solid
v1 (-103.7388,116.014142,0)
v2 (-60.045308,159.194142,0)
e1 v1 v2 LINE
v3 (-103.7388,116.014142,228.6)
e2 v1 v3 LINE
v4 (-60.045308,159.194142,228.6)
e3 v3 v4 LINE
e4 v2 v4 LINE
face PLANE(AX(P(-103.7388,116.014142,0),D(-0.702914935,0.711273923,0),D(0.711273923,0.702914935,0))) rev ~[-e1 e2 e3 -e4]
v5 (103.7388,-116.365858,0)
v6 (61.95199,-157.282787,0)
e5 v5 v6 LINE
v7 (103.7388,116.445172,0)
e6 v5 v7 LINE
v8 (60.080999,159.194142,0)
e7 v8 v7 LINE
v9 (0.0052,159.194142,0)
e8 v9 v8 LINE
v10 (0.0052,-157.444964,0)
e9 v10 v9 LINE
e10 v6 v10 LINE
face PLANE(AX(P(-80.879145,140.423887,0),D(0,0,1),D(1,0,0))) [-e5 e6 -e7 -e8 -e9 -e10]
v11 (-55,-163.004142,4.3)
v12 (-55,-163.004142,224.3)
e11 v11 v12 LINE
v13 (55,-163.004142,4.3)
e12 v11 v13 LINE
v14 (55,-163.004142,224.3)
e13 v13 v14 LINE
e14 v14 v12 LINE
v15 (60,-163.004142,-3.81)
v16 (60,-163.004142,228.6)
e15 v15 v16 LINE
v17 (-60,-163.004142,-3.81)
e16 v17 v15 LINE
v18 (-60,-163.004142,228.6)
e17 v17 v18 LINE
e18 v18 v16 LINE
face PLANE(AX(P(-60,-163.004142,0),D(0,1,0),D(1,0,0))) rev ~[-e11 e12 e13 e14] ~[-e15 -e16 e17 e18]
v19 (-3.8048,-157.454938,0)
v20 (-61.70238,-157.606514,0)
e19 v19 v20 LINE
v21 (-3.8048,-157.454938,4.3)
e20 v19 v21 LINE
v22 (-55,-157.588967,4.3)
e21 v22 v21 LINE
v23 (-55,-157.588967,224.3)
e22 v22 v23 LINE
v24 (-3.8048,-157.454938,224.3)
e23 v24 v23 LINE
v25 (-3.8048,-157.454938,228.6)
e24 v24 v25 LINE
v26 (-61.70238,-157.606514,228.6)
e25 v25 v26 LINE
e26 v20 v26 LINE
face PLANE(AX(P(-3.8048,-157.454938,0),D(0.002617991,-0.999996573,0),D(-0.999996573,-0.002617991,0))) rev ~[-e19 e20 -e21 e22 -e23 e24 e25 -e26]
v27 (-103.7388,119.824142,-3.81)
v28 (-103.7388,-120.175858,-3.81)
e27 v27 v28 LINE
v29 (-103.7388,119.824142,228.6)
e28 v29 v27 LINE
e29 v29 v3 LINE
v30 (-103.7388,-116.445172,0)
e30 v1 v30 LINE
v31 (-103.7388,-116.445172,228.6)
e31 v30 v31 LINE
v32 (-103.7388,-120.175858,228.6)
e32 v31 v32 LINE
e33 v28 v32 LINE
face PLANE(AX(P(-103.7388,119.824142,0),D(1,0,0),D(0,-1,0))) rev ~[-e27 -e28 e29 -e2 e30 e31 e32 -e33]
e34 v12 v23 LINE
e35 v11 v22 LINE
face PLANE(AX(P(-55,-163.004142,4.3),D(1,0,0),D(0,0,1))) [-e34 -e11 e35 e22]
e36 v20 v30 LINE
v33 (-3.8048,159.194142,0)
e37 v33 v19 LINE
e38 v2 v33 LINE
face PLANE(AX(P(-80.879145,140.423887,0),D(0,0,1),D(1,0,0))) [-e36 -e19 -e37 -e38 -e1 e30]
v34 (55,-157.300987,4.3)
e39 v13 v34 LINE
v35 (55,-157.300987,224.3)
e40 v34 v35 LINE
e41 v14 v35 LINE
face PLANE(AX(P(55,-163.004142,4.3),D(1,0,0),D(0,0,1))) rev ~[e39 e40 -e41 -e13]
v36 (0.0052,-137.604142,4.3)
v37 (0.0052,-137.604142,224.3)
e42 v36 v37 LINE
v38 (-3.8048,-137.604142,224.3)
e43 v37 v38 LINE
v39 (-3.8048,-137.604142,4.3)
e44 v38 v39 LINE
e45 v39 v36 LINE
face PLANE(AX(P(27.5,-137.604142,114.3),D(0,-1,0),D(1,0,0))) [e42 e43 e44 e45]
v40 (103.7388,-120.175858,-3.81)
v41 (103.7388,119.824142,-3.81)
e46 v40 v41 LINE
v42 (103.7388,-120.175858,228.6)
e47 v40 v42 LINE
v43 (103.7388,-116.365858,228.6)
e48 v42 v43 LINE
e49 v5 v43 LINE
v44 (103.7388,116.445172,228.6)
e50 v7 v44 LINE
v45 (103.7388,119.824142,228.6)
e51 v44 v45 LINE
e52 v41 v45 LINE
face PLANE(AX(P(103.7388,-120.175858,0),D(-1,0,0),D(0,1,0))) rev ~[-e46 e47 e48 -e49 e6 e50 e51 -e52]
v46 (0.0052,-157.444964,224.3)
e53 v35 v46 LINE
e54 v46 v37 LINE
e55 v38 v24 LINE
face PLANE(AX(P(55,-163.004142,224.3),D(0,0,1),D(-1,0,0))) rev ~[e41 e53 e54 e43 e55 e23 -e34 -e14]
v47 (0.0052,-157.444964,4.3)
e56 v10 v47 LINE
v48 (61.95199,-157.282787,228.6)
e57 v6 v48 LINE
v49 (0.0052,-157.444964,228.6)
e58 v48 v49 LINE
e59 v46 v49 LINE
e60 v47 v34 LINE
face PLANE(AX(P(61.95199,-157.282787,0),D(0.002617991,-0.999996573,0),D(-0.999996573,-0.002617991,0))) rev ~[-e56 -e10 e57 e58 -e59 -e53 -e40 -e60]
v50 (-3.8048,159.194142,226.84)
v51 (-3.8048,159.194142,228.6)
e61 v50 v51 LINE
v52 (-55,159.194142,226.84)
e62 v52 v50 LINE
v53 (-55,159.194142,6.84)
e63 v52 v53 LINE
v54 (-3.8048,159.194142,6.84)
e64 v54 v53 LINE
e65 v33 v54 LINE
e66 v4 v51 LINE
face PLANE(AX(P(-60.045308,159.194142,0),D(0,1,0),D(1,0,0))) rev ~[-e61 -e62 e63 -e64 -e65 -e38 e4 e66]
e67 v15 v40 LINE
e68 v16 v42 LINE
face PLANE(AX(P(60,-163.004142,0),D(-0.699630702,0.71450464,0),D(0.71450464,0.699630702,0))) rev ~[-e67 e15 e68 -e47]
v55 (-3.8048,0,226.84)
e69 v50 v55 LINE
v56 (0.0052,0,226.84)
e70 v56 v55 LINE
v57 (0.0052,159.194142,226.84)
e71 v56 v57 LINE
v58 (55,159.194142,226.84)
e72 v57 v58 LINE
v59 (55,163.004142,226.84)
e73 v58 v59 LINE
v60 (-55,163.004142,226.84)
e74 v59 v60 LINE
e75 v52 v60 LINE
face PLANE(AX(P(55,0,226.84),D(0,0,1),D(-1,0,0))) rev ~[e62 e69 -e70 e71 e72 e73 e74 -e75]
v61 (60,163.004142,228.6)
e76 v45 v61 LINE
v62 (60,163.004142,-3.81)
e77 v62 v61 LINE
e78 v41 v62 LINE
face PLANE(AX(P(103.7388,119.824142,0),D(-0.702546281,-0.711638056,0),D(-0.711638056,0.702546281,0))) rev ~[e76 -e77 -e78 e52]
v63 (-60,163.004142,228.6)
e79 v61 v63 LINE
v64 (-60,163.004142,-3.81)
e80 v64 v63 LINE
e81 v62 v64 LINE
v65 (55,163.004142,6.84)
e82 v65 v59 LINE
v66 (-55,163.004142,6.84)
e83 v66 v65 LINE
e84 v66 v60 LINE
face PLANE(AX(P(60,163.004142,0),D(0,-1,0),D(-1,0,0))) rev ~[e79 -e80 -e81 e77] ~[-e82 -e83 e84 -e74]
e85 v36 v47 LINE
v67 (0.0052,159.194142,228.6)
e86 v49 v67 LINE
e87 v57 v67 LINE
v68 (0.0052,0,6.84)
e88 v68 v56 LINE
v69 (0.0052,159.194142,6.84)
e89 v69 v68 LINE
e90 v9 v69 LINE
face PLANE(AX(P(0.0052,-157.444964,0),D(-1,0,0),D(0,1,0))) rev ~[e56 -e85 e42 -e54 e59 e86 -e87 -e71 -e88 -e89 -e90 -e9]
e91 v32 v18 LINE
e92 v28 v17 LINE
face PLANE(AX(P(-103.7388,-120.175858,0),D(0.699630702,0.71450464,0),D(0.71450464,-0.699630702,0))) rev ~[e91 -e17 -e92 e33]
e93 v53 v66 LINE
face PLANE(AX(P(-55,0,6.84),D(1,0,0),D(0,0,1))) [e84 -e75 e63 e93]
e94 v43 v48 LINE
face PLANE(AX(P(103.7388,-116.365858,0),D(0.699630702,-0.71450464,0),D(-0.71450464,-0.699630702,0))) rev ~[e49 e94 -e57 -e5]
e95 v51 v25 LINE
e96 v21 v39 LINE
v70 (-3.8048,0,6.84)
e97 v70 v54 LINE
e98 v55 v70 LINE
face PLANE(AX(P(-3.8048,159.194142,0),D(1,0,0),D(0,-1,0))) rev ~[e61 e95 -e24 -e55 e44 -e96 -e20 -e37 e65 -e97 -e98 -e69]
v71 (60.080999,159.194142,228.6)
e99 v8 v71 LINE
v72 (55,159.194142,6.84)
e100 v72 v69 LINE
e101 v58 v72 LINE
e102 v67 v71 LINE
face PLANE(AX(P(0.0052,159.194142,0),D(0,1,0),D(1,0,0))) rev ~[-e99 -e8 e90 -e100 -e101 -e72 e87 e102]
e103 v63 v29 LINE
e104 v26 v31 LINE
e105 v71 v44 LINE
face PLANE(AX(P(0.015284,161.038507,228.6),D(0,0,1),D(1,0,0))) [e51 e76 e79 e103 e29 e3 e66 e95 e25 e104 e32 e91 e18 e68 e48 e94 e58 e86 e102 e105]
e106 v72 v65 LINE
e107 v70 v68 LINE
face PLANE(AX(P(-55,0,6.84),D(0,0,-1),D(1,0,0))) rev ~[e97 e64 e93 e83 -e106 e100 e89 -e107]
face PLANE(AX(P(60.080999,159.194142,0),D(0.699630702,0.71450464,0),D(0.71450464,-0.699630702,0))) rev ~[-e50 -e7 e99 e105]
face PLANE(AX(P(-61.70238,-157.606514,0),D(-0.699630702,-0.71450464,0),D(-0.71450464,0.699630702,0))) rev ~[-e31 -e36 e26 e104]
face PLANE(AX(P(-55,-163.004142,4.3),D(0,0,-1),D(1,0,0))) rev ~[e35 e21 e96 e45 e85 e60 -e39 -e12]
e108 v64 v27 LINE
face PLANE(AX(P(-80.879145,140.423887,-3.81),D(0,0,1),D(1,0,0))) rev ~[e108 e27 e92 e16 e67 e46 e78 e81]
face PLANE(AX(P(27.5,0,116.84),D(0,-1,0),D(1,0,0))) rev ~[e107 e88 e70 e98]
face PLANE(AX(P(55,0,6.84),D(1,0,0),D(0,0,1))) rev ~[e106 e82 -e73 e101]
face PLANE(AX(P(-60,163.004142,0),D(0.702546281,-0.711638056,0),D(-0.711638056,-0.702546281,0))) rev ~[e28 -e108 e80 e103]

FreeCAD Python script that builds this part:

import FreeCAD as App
import Part
import Sketcher
from FreeCAD import Vector
Q = App.Units.Quantity


def add_polygon(sketch, points):
    """Adds a closed chain of lines whose ends are joined by coincident constraints."""
    first, n = sketch.GeometryCount, len(points)
    for a, b in zip(points, points[1:] + points[:1]):
        sketch.addGeometry(Part.LineSegment(App.Vector(*a, 0), App.Vector(*b, 0)), False)
    for i in range(n):
        sketch.addConstraint(Sketcher.Constraint("Coincident", first + i, 2, first + (i + 1) % n, 1))

doc = App.newDocument("Part")
body = doc.addObject("PartDesign::Body", "Body")

sketch1 = body.newObject("Sketcher::SketchObject", "Sketch")
sketch1.AttachmentSupport = (doc.getObject("XY_Plane"), [""])
sketch1.MapMode = "FlatFace"
add_polygon(sketch1, [(104, 120), (60, 163), (-60, 163), (-104, 120), (-104, -120), (-60, -163), (60, -163), (104, -120)])
sketch1.addConstraint(Sketcher.Constraint("Horizontal", 1))
sketch1.addConstraint(Sketcher.Constraint("Vertical", 3))
sketch1.addConstraint(Sketcher.Constraint("Horizontal", 5))
sketch1.addConstraint(Sketcher.Constraint("Vertical", 7))
sketch1.addConstraint(Sketcher.Constraint("Symmetric", 0, 2, 4, 2, -1, 1))
sketch1.addConstraint(Sketcher.Constraint("Symmetric", 3, 2, 6, 2, -2))
sketch1.addConstraint(Sketcher.Constraint("Horizontal", 2, 2, 7, 2))
sketch1.addConstraint(Sketcher.Constraint("Vertical", 1, 2, 4, 2))
sketch1.addConstraint(Sketcher.Constraint("Vertical", 0, 2, 5, 2))
sketch1.addConstraint(Sketcher.Constraint("DistanceX", 1, 2, 1, 1, 120.0))
sketch1.addConstraint(Sketcher.Constraint("DistanceY", 3, 2, 3, 1, 240.0))
sketch1.addConstraint(Sketcher.Constraint("DistanceY", 2, 2, 1, 2, 43.18))
sketch1.addConstraint(Sketcher.Constraint("DistanceX", 2, 2, -1, 1, 103.7388))
sketch1.addConstraint(Sketcher.Constraint("DistanceY", -1, 1, 0, 2, 163.004142))
pad1 = body.newObject("PartDesign::Pad", "Pad")
pad1.Profile = sketch1
pad1.Length = 3.81
pad1.Reversed = True

sketch2 = body.newObject("Sketcher::SketchObject", "Sketch001")
sketch2.AttachmentSupport = (doc.getObject("XY_Plane"), [""])
sketch2.MapMode = "FlatFace"
add_polygon(sketch2, [(-60, 159.2), (-3.8, 159.2), (-3.8, -157.5), (-61.7, -157.6), (-103.7, -116.4), (-103.7, -120.2), (-60, -163), (60, -163), (103.7, -120.2), (103.7, -116.4), (62, -157.3), (0, -157.4), (0, 159.2), (60.1, 159.2), (103.7, 116.4), (103.7, 119.8), (60, 163), (-60, 163), (-103.7, 119.8), (-103.7, 116)])
sketch2.addConstraint(Sketcher.Constraint("Horizontal", 0))
sketch2.addConstraint(Sketcher.Constraint("Vertical", 1))
sketch2.addConstraint(Sketcher.Constraint("Vertical", 4))
sketch2.addConstraint(Sketcher.Constraint("Horizontal", 6))
sketch2.addConstraint(Sketcher.Constraint("Vertical", 8))
sketch2.addConstraint(Sketcher.Constraint("Vertical", 11))
sketch2.addConstraint(Sketcher.Constraint("Horizontal", 12))
sketch2.addConstraint(Sketcher.Constraint("Vertical", 14))
sketch2.addConstraint(Sketcher.Constraint("Horizontal", 16))
sketch2.addConstraint(Sketcher.Constraint("Vertical", 18))
sketch2.addConstraint(Sketcher.Constraint("Symmetric", 3, 2, 13, 2, -1, 1))
sketch2.addConstraint(Sketcher.Constraint("Symmetric", 5, 2, 15, 2, -1, 1))
sketch2.addConstraint(Sketcher.Constraint("Symmetric", 4, 2, 7, 2, -2))
sketch2.addConstraint(Sketcher.Constraint("Symmetric", 14, 2, 17, 2, -2))
sketch2.addConstraint(Sketcher.Constraint("Parallel", 3, 5))
sketch2.addConstraint(Sketcher.Constraint("Parallel", 7, 9))
sketch2.addConstraint(Sketcher.Constraint("Parallel", 2, 10))
sketch2.addConstraint(Sketcher.Constraint("Parallel", 5, 13))
sketch2.addConstraint(Sketcher.Constraint("Horizontal", 0, 2, 11, 2))
sketch2.addConstraint(Sketcher.Constraint("Vertical", 6, 2, 15, 2))
sketch2.addConstraint(Sketcher.Constraint("Vertical", 5, 2, 16, 2))
sketch2.addConstraint(Sketcher.Constraint("Equal", 8, 18))
sketch2.addConstraint(Sketcher.Constraint("DistanceX", 6, 1, 6, 2, 120.0))
sketch2.addConstraint(Sketcher.Constraint("DistanceY", 8, 1, 8, 2, 3.81))
sketch2.addConstraint(Sketcher.Constraint("Angle", 2, Q("-179.85 deg")))
sketch2.addConstraint(Sketcher.Constraint("DistanceY", 4, 2, 0, 2, 279.37))
sketch2.addConstraint(Sketcher.Constraint("DistanceX", 1, 2, 10, 2, 3.81))
sketch2.addConstraint(Sketcher.Constraint("DistanceY", 14, 2, 12, 2, 39.37))
sketch2.addConstraint(Sketcher.Constraint("DistanceY", 12, 2, 15, 2, 3.81))
sketch2.addConstraint(Sketcher.Constraint("Distance", 10, 61.947002))
sketch2.addConstraint(Sketcher.Constraint("DistanceX", 12, 1, 12, 2, 60.075799))
sketch2.addConstraint(Sketcher.Constraint("DistanceX", -1, 1, 12, 2, 60.080999))
sketch2.addConstraint(Sketcher.Constraint("DistanceX", 3, 2, 1, 2, 99.934))
sketch2.addConstraint(Sketcher.Constraint("DistanceX", 0, 1, 0, 2, 56.240508))
sketch2.addConstraint(Sketcher.Constraint("DistanceY", 1, 2, 1, 1, 316.64908))
sketch2.addConstraint(Sketcher.Constraint("DistanceY", 14, 1, 14, 2, 3.37897))
pad2 = body.newObject("PartDesign::Pad", "Pad001")
pad2.Profile = sketch2
pad2.Length = 228.6

sketch3 = body.newObject("Sketcher::SketchObject", "Sketch002")
sketch3.AttachmentSupport = (doc.getObject("XZ_Plane"), [""])
sketch3.MapMode = "FlatFace"
sketch3.AttachmentOffset = App.Placement(Vector(0, 0, 163.004142), App.Rotation())
add_polygon(sketch3, [(55, 4), (55, 224), (-55, 224), (-55, 4)])
sketch3.addConstraint(Sketcher.Constraint("Vertical", 0))
sketch3.addConstraint(Sketcher.Constraint("Horizontal", 1))
sketch3.addConstraint(Sketcher.Constraint("Vertical", 2))
sketch3.addConstraint(Sketcher.Constraint("Horizontal", 3))
sketch3.addConstraint(Sketcher.Constraint("DistanceX", 1, 2, 1, 1, 110.0))
sketch3.addConstraint(Sketcher.Constraint("DistanceY", 0, 1, 0, 2, 220.0))
sketch3.addConstraint(Sketcher.Constraint("DistanceX", -1, 1, 0, 2, 55.0))
sketch3.addConstraint(Sketcher.Constraint("DistanceY", -1, 1, 0, 2, 224.3))
pocket1 = body.newObject("PartDesign::Pocket", "Pocket")
pocket1.Profile = sketch3
pocket1.Length = 25.4

sketch4 = body.newObject("Sketcher::SketchObject", "Sketch003")
sketch4.AttachmentSupport = (doc.getObject("XZ_Plane"), [""])
sketch4.MapMode = "FlatFace"
add_polygon(sketch4, [(55, 7), (55, 227), (-55, 227), (-55, 7)])
sketch4.addConstraint(Sketcher.Constraint("Vertical", 0))
sketch4.addConstraint(Sketcher.Constraint("Horizontal", 1))
sketch4.addConstraint(Sketcher.Constraint("Vertical", 2))
sketch4.addConstraint(Sketcher.Constraint("Horizontal", 3))
sketch4.addConstraint(Sketcher.Constraint("DistanceX", 1, 2, 1, 1, 110.0))
sketch4.addConstraint(Sketcher.Constraint("DistanceY", 0, 1, 0, 2, 220.0))
sketch4.addConstraint(Sketcher.Constraint("DistanceX", -1, 1, 0, 2, 55.0))
sketch4.addConstraint(Sketcher.Constraint("DistanceY", -1, 1, 0, 2, 226.84))
pocket2 = body.newObject("PartDesign::Pocket", "Pocket001")
pocket2.Profile = sketch4
pocket2.Length = 228.6

doc.recompute()
